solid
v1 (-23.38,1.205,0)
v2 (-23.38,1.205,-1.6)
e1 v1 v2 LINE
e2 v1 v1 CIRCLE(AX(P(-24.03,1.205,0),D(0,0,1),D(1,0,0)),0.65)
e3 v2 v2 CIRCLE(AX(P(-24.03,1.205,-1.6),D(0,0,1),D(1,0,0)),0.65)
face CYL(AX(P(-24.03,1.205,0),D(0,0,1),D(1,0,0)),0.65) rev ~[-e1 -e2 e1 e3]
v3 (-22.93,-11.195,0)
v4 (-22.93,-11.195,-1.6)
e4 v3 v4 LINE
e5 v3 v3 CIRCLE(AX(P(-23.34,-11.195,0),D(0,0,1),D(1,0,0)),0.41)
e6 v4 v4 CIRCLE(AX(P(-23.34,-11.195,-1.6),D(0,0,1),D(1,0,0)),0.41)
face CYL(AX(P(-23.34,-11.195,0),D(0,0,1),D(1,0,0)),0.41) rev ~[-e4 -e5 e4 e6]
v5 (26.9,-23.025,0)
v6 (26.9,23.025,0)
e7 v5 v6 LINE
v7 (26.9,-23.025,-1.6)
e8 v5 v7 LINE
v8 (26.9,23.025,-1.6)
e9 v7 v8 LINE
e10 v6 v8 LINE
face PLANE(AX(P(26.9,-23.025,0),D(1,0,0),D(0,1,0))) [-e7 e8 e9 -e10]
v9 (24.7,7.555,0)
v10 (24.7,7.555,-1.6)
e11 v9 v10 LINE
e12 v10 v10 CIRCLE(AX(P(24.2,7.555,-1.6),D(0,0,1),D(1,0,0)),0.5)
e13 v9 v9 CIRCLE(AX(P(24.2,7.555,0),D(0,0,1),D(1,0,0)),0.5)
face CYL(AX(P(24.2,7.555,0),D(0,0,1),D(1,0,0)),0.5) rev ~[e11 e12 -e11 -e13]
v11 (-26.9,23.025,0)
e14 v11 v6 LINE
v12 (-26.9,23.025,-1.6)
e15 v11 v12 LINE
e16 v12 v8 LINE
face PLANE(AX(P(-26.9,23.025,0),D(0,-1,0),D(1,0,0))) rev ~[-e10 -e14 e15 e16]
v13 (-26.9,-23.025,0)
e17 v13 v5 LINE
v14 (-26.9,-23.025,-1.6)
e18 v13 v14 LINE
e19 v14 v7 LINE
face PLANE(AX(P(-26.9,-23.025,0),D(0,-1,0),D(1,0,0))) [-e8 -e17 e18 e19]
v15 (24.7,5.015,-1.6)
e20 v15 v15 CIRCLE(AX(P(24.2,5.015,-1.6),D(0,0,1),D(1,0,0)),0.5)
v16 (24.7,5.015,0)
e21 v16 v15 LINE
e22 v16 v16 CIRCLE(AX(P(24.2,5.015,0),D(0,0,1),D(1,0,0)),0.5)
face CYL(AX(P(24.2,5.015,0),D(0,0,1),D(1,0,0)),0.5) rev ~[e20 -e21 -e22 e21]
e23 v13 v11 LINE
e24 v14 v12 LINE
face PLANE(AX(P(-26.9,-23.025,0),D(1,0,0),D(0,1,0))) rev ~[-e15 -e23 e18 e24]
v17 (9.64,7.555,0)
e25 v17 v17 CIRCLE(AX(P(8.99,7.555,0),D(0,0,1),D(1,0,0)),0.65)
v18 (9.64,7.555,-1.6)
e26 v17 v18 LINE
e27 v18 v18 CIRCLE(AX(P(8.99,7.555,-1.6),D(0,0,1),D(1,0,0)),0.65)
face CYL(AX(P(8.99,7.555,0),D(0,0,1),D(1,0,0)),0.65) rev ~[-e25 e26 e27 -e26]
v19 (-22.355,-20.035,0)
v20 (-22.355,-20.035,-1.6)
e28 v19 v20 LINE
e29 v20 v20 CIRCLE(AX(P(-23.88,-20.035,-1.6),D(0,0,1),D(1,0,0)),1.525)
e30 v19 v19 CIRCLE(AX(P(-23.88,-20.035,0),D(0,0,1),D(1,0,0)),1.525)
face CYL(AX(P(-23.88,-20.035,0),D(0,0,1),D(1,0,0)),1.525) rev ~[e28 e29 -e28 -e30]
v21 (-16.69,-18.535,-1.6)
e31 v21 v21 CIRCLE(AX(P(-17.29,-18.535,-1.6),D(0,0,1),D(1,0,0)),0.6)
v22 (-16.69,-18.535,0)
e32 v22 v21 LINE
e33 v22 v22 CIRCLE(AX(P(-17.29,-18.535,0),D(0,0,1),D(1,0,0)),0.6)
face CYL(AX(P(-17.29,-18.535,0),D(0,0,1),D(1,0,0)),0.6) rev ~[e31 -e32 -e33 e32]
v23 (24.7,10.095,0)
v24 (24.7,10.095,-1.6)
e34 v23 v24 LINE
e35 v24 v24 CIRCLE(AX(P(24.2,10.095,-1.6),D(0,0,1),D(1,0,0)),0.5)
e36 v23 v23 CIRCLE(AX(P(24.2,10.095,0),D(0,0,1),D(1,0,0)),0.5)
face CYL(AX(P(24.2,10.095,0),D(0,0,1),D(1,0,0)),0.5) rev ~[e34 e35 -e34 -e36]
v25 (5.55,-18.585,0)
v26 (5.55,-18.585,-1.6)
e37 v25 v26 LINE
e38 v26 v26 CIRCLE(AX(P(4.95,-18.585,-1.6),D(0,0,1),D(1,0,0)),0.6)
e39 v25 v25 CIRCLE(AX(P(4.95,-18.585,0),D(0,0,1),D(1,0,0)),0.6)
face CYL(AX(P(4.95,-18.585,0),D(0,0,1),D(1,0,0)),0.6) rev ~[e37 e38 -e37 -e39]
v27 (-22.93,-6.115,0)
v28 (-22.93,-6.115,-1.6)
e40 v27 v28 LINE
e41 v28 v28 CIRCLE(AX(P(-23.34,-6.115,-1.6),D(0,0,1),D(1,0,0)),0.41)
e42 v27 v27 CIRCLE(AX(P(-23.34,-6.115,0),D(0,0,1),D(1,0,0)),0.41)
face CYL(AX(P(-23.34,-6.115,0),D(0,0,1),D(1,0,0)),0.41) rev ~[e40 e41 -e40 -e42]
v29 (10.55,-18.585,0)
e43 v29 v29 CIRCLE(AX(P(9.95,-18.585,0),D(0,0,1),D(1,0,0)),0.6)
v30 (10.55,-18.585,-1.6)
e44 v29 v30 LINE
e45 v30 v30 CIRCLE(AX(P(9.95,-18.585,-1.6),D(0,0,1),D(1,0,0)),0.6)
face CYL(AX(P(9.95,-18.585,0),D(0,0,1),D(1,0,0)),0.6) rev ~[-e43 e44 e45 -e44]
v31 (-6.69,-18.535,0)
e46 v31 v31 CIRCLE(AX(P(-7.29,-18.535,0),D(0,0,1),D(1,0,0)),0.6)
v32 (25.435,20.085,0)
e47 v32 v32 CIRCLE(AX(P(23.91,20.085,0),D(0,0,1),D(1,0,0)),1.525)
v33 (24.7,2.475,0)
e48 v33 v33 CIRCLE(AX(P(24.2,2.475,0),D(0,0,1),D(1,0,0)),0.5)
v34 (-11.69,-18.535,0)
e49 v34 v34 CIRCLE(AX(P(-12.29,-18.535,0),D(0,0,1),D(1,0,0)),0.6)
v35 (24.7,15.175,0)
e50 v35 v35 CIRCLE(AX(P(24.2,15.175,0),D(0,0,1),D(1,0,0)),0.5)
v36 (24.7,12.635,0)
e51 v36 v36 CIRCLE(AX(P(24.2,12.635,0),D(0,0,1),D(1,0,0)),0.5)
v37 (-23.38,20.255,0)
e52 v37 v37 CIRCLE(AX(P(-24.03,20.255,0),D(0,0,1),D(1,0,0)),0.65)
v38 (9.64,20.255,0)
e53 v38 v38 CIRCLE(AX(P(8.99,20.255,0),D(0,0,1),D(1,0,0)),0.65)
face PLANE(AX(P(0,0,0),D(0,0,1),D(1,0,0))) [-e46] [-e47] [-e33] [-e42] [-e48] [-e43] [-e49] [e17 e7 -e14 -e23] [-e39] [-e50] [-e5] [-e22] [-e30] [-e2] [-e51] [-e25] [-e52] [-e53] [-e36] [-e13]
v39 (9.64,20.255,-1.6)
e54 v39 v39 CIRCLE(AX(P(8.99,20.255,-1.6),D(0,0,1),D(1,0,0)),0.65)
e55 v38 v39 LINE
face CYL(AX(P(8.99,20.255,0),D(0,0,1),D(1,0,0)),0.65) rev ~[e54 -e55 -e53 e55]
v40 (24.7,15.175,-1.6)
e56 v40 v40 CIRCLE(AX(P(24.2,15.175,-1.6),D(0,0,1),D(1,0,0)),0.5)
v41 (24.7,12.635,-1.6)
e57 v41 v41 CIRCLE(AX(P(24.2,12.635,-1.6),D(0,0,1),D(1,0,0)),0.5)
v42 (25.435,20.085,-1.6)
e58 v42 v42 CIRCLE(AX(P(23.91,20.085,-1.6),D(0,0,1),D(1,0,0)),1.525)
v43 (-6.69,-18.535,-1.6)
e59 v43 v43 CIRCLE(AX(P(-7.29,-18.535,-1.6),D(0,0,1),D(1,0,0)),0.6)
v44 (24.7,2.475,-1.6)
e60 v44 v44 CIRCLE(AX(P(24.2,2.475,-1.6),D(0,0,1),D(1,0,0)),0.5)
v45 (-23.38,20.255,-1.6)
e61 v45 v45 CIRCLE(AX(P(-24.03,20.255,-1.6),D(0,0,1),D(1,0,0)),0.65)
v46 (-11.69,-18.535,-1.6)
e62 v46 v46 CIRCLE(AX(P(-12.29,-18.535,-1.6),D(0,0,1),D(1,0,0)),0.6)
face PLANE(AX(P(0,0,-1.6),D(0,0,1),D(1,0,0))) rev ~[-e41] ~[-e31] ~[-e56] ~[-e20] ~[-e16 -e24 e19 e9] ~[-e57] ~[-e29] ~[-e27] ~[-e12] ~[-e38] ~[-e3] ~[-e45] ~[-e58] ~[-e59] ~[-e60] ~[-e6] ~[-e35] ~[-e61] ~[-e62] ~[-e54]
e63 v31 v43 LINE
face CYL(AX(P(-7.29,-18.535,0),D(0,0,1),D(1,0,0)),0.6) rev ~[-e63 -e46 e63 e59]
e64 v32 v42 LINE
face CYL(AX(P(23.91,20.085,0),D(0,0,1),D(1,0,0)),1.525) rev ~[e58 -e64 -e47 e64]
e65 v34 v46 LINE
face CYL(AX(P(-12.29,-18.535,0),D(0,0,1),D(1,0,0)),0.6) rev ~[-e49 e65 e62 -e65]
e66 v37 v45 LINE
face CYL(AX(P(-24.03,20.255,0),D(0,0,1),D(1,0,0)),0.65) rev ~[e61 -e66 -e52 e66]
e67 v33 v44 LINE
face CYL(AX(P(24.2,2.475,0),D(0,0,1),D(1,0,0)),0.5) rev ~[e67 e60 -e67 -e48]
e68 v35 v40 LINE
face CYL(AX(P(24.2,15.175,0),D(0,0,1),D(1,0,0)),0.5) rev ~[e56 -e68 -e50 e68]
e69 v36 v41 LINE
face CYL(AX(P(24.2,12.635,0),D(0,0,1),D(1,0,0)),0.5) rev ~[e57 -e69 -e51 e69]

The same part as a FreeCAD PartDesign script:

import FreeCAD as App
import Part
import Sketcher


def add_polygon(sketch, points):
    """Adds a closed chain of lines whose ends are joined by coincident constraints."""
    first, n = sketch.GeometryCount, len(points)
    for a, b in zip(points, points[1:] + points[:1]):
        sketch.addGeometry(Part.LineSegment(App.Vector(*a, 0), App.Vector(*b, 0)), False)
    for i in range(n):
        sketch.addConstraint(Sketcher.Constraint("Coincident", first + i, 2, first + (i + 1) % n, 1))

doc = App.newDocument("Part")
body = doc.addObject("PartDesign::Body", "Body")

sketch1 = body.newObject("Sketcher::SketchObject", "Sketch")
sketch1.AttachmentSupport = (doc.getObject("XY_Plane"), [""])
sketch1.MapMode = "FlatFace"
add_polygon(sketch1, [(-26.9, 23.02), (-26.9, -23.02), (26.9, -23.02), (26.9, 23.02)])
sketch1.addGeometry(Part.Circle(App.Vector(-23.88, -20.04, 0), App.Vector(0, 0, 1), 1.52), False)
sketch1.addGeometry(Part.Circle(App.Vector(-17.29, -18.54, 0), App.Vector(0, 0, 1), 0.6), False)
sketch1.addGeometry(Part.Circle(App.Vector(-23.34, -11.2, 0), App.Vector(0, 0, 1), 0.41), False)
sketch1.addGeometry(Part.Circle(App.Vector(-12.29, -18.54, 0), App.Vector(0, 0, 1), 0.6), False)
sketch1.addGeometry(Part.Circle(App.Vector(-7.29, -18.54, 0), App.Vector(0, 0, 1), 0.6), False)
sketch1.addGeometry(Part.Circle(App.Vector(-23.34, -6.12, 0), App.Vector(0, 0, 1), 0.41), False)
sketch1.addGeometry(Part.Circle(App.Vector(4.95, -18.59, 0), App.Vector(0, 0, 1), 0.6), False)
sketch1.addGeometry(Part.Circle(App.Vector(9.95, -18.59, 0), App.Vector(0, 0, 1), 0.6), False)
sketch1.addGeometry(Part.Circle(App.Vector(-24.03, 1.21, 0), App.Vector(0, 0, 1), 0.65), False)
sketch1.addGeometry(Part.Circle(App.Vector(-24.03, 20.25, 0), App.Vector(0, 0, 1), 0.65), False)
sketch1.addGeometry(Part.Circle(App.Vector(8.99, 7.55, 0), App.Vector(0, 0, 1), 0.65), False)
sketch1.addGeometry(Part.Circle(App.Vector(24.2, 2.48, 0), App.Vector(0, 0, 1), 0.5), False)
sketch1.addGeometry(Part.Circle(App.Vector(24.2, 5.01, 0), App.Vector(0, 0, 1), 0.5), False)
sketch1.addGeometry(Part.Circle(App.Vector(24.2, 7.55, 0), App.Vector(0, 0, 1), 0.5), False)
sketch1.addGeometry(Part.Circle(App.Vector(24.2, 10.1, 0), App.Vector(0, 0, 1), 0.5), False)
sketch1.addGeometry(Part.Circle(App.Vector(8.99, 20.25, 0), App.Vector(0, 0, 1), 0.65), False)
sketch1.addGeometry(Part.Circle(App.Vector(24.2, 12.63, 0), App.Vector(0, 0, 1), 0.5), False)
sketch1.addGeometry(Part.Circle(App.Vector(24.2, 15.18, 0), App.Vector(0, 0, 1), 0.5), False)
sketch1.addGeometry(Part.Circle(App.Vector(23.91, 20.09, 0), App.Vector(0, 0, 1), 1.52), False)
sketch1.addConstraint([
    Sketcher.Constraint("Vertical", 0),
    Sketcher.Constraint("Horizontal", 1),
    Sketcher.Constraint("Vertical", 2),
    Sketcher.Constraint("Horizontal", 3),
    Sketcher.Constraint("Equal", 5, 7),
    Sketcher.Constraint("Equal", 7, 8),
    Sketcher.Constraint("Equal", 6, 9),
    Sketcher.Constraint("Equal", 8, 10),
    Sketcher.Constraint("Equal", 10, 11),
    Sketcher.Constraint("Equal", 12, 13),
    Sketcher.Constraint("Equal", 13, 14),
    Sketcher.Constraint("Equal", 15, 16),
    Sketcher.Constraint("Equal", 16, 17),
    Sketcher.Constraint("Equal", 17, 18),
    Sketcher.Constraint("Equal", 14, 19),
    Sketcher.Constraint("Equal", 18, 20),
    Sketcher.Constraint("Equal", 20, 21),
    Sketcher.Constraint("Equal", 4, 22),
    Sketcher.Constraint("Symmetric", 0, 2, 2, 2, -1, 1),
    Sketcher.Constraint("Horizontal", 5, 3, 7, 3),
    Sketcher.Constraint("Horizontal", 7, 3, 8, 3),
    Sketcher.Constraint("Horizontal", 10, 3, 11, 3),
    Sketcher.Constraint("Horizontal", 14, 3, 17, 3),
    Sketcher.Constraint("Horizontal", 13, 3, 19, 3),
    Sketcher.Constraint("Vertical", 6, 3, 9, 3),
    Sketcher.Constraint("Vertical", 12, 3, 13, 3),
    Sketcher.Constraint("Vertical", 15, 3, 16, 3),
    Sketcher.Constraint("Vertical", 16, 3, 17, 3),
    Sketcher.Constraint("Vertical", 17, 3, 18, 3),
    Sketcher.Constraint("Vertical", 14, 3, 19, 3),
    Sketcher.Constraint("Vertical", 18, 3, 20, 3),
    Sketcher.Constraint("Vertical", 20, 3, 21, 3),
    Sketcher.Constraint("Diameter", 15, 1.0),
    Sketcher.Constraint("Diameter", 5, 1.2),
    Sketcher.Constraint("Diameter", 12, 1.3),
    Sketcher.Constraint("Diameter", 4, 3.05),
    Sketcher.Constraint("Diameter", 6, 0.82),
    Sketcher.Constraint("DistanceX", 1, 1, 1, 2, 53.8),
    Sketcher.Constraint("DistanceX", 5, 3, 7, 3, 5.0),
    Sketcher.Constraint("DistanceX", 7, 3, 8, 3, 5.0),
    Sketcher.Constraint("DistanceX", 10, 3, 11, 3, 5.0),
    Sketcher.Constraint("DistanceY", 0, 2, 0, 1, 46.05),
    Sketcher.Constraint("DistanceX", -1, 1, 15, 3, 24.2),
    Sketcher.Constraint("DistanceY", 4, 3, 5, 3, 1.5),
    Sketcher.Constraint("DistanceY", 6, 3, 12, 3, 12.4),
    Sketcher.Constraint("DistanceY", 11, 3, 16, 3, 23.6),
    Sketcher.Constraint("DistanceY", 14, 3, 19, 3, 12.7),
    Sketcher.Constraint("DistanceY", 15, 3, 21, 3, 12.7),
    Sketcher.Constraint("DistanceY", 1, 2, 15, 3, 25.5),
    Sketcher.Constraint("DistanceX", 4, 3, -1, 1, 23.88),
    Sketcher.Constraint("DistanceX", 5, 3, -1, 1, 17.29),
    Sketcher.Constraint("DistanceX", 6, 3, -1, 1, 23.34),
    Sketcher.Constraint("DistanceX", -1, 1, 10, 3, 4.95),
    Sketcher.Constraint("DistanceX", 12, 3, -1, 1, 24.03),
    Sketcher.Constraint("DistanceX", -1, 1, 14, 3, 8.99),
    Sketcher.Constraint("DistanceX", -1, 1, 22, 3, 23.91),
    Sketcher.Constraint("DistanceY", 4, 3, 6, 3, 8.84),
    Sketcher.Constraint("DistanceY", 6, 3, 9, 3, 5.08),
    Sketcher.Constraint("DistanceY", 10, 3, 8, 3, 0.05),
    Sketcher.Constraint("DistanceY", 12, 3, 13, 3, 19.05),
    Sketcher.Constraint("DistanceY", 15, 3, 14, 3, 5.08),
    Sketcher.Constraint("DistanceY", 17, 3, 18, 3, 2.54),
    Sketcher.Constraint("DistanceY", 18, 3, 20, 3, 2.54),
    Sketcher.Constraint("DistanceY", 21, 3, 22, 3, 4.91),
])
pad1 = body.newObject("PartDesign::Pad", "Pad")
pad1.Profile = sketch1
pad1.Length = 1.6
pad1.Reversed = True

doc.recompute()
